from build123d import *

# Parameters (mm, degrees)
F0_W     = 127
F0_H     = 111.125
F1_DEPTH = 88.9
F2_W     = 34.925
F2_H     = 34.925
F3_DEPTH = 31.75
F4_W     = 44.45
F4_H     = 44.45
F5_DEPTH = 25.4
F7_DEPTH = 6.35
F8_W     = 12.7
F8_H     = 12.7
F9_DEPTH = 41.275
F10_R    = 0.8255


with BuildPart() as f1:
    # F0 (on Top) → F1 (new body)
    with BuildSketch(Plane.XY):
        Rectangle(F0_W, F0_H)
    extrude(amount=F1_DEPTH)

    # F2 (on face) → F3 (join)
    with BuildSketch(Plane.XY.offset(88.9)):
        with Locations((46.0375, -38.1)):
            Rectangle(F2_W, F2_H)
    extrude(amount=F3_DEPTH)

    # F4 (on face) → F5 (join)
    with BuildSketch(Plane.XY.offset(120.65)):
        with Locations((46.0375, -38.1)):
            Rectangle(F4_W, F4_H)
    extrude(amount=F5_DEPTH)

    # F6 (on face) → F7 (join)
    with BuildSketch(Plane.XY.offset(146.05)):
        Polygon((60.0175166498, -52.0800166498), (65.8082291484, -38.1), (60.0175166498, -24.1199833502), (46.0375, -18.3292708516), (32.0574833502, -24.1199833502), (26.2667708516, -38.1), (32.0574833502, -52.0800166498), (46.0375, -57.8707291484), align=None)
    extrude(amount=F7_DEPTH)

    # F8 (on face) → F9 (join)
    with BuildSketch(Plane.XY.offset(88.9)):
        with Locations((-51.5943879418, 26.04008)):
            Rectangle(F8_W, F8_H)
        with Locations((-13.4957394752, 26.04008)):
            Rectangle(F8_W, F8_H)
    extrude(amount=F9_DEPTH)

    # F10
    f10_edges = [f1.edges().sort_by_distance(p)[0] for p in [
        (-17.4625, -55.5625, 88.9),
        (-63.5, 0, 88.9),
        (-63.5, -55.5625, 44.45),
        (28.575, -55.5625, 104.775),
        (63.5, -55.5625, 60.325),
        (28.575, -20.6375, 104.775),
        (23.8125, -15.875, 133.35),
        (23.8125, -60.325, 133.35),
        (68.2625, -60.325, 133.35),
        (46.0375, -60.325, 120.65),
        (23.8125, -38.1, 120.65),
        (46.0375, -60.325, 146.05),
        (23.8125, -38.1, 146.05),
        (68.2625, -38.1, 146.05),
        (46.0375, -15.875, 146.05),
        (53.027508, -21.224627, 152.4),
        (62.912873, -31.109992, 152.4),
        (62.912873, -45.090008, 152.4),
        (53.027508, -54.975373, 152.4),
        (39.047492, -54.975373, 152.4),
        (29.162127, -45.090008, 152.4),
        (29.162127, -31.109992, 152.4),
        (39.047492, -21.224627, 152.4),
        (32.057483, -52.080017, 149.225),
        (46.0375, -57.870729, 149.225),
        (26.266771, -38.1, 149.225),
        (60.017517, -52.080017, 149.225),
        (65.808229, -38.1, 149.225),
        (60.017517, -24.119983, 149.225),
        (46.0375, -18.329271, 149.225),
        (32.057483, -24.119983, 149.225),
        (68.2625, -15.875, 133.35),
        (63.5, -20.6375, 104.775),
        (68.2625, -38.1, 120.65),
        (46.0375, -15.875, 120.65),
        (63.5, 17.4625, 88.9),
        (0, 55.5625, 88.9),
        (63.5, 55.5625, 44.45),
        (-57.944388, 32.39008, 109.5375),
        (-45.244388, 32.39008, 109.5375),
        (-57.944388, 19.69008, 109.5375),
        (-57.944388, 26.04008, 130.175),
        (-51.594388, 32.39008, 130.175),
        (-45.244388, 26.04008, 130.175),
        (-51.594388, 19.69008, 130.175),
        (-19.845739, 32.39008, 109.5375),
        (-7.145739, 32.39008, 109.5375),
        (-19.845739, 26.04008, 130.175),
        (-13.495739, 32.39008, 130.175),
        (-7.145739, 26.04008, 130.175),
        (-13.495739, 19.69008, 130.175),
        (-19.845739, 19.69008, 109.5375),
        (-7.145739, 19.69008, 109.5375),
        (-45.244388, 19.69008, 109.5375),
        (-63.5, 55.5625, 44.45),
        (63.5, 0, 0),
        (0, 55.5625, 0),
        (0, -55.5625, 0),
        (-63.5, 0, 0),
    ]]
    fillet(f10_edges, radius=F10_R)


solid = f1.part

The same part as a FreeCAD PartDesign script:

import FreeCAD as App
import Part
import Sketcher

V = App.Vector
Q = App.Units.Quantity


def edges_at(feature, points):
    """Names of the edges that pass closest to the given points."""
    edges = feature.Shape.Edges
    near = lambda p: min(range(len(edges)), key=lambda i: edges[i].distToShape(Part.Vertex(*p))[0])
    return sorted({f"Edge{near(p) + 1}" for p in points})


def add_polygon(sketch, points):
    """Adds a closed chain of lines whose ends are joined by coincident constraints."""
    first, n = sketch.GeometryCount, len(points)
    for a, b in zip(points, points[1:] + points[:1]):
        sketch.addGeometry(Part.LineSegment(App.Vector(*a, 0), App.Vector(*b, 0)), False)
    for i in range(n):
        sketch.addConstraint(Sketcher.Constraint("Coincident", first + i, 2, first + (i + 1) % n, 1))

doc = App.newDocument("Part")
body = doc.addObject("PartDesign::Body", "Body")

sketch1 = body.newObject("Sketcher::SketchObject", "Sketch")
sketch1.AttachmentSupport = (doc.getObject("XY_Plane"), [""])
sketch1.MapMode = "FlatFace"
add_polygon(sketch1, [(-64, 56), (-64, -56), (64, -56), (64, 56)])
sketch1.addConstraint(Sketcher.Constraint("Vertical", 0))
sketch1.addConstraint(Sketcher.Constraint("Horizontal", 1))
sketch1.addConstraint(Sketcher.Constraint("Vertical", 2))
sketch1.addConstraint(Sketcher.Constraint("Horizontal", 3))
sketch1.addConstraint(Sketcher.Constraint("Symmetric", 0, 2, 2, 2, -1, 1))
sketch1.addConstraint(Sketcher.Constraint("DistanceX", 1, 1, 1, 2, Q("5 in")))
sketch1.addConstraint(Sketcher.Constraint("DistanceY", 0, 2, 0, 1, Q("4.375 in")))
pad1 = body.newObject("PartDesign::Pad", "Pad")
pad1.Profile = sketch1
pad1.Length = Q("3.5 in")

sketch2 = body.newObject("Sketcher::SketchObject", "Sketch001")
sketch2.AttachmentSupport = (doc.getObject("XY_Plane"), [""])
sketch2.MapMode = "FlatFace"
sketch2.AttachmentOffset = App.Placement(V(0, 0, 3.5 * 25.4), App.Rotation())
add_polygon(sketch2, [(29, -21), (29, -56), (64, -56), (64, -21)])
sketch2.addConstraint(Sketcher.Constraint("Vertical", 0))
sketch2.addConstraint(Sketcher.Constraint("Horizontal", 1))
sketch2.addConstraint(Sketcher.Constraint("Vertical", 2))
sketch2.addConstraint(Sketcher.Constraint("Horizontal", 3))
sketch2.addConstraint(Sketcher.Constraint("Equal", 3, 0))
sketch2.addConstraint(Sketcher.Constraint("DistanceX", -1, 1, 1, 2, Q("2.5 in")))
sketch2.addConstraint(Sketcher.Constraint("DistanceX", 1, 1, 1, 2, Q("1.375 in")))
sketch2.addConstraint(Sketcher.Constraint("DistanceY", 0, 2, -1, 1, Q("2.1875 in")))
pad2 = body.newObject("PartDesign::Pad", "Pad001")
pad2.Profile = sketch2
pad2.Length = Q("1.25 in")

sketch3 = body.newObject("Sketcher::SketchObject", "Sketch002")
sketch3.AttachmentSupport = (doc.getObject("XY_Plane"), [""])
sketch3.MapMode = "FlatFace"
sketch3.AttachmentOffset = App.Placement(V(0, 0, 4.75 * 25.4), App.Rotation())
add_polygon(sketch3, [(24, -16), (24, -60), (68, -60), (68, -16)])
sketch3.addConstraint(Sketcher.Constraint("Vertical", 0))
sketch3.addConstraint(Sketcher.Constraint("Horizontal", 1))
sketch3.addConstraint(Sketcher.Constraint("Vertical", 2))
sketch3.addConstraint(Sketcher.Constraint("Horizontal", 3))
sketch3.addConstraint(Sketcher.Constraint("Equal", 3, 0))
sketch3.addConstraint(Sketcher.Constraint("DistanceX", 1, 1, 1, 2, Q("1.75 in")))
sketch3.addConstraint(Sketcher.Constraint("DistanceX", -1, 1, 0, 2, Q("0.9375 in")))
sketch3.addConstraint(Sketcher.Constraint("DistanceY", 0, 2, -1, 1, Q("2.375 in")))
pad3 = body.newObject("PartDesign::Pad", "Pad002")
pad3.Profile = sketch3
pad3.Length = Q("1 in")

sketch4 = body.newObject("Sketcher::SketchObject", "Sketch003")
sketch4.AttachmentSupport = (doc.getObject("XY_Plane"), [""])
sketch4.MapMode = "FlatFace"
sketch4.AttachmentOffset = App.Placement(V(0, 0, 5.75 * 25.4), App.Rotation())
add_polygon(sketch4, [(60, -52), (66, -38), (60, -24), (46, -18), (32, -24), (26, -38), (32, -52), (46, -58)])
sketch4.addConstraint(Sketcher.Constraint("Perpendicular", 0, 2))
sketch4.addConstraint(Sketcher.Constraint("Perpendicular", 1, 3))
sketch4.addConstraint(Sketcher.Constraint("Perpendicular", 2, 4))
sketch4.addConstraint(Sketcher.Constraint("Perpendicular", 3, 5))
sketch4.addConstraint(Sketcher.Constraint("Perpendicular", 4, 6))
sketch4.addConstraint(Sketcher.Constraint("Perpendicular", 5, 7))
sketch4.addConstraint(Sketcher.Constraint("Horizontal", 1, 2, 3, 2))
sketch4.addConstraint(Sketcher.Constraint("Horizontal", 0, 2, 4, 2))
sketch4.addConstraint(Sketcher.Constraint("Horizontal", 5, 2, 7, 2))
sketch4.addConstraint(Sketcher.Constraint("Vertical", 3, 2, 5, 2))
sketch4.addConstraint(Sketcher.Constraint("Vertical", 2, 2, 6, 2))
sketch4.addConstraint(Sketcher.Constraint("Equal", 1, 2))
sketch4.addConstraint(Sketcher.Constraint("DistanceY", 0, 2, -1, 1, Q("1.5 in")))
sketch4.addConstraint(Sketcher.Constraint("Angle", 0, Q("67.5 deg")))
sketch4.addConstraint(Sketcher.Constraint("DistanceX", -1, 1, 2, 2, Q("1.8125 in")))
sketch4.addConstraint(Sketcher.Constraint("Distance", 0, Q("15.131861 mm")))
pad4 = body.newObject("PartDesign::Pad", "Pad003")
pad4.Profile = sketch4
pad4.Length = Q("0.25 in")

sketch5 = body.newObject("Sketcher::SketchObject", "Sketch004")
sketch5.AttachmentSupport = (doc.getObject("XY_Plane"), [""])
sketch5.MapMode = "FlatFace"
sketch5.AttachmentOffset = App.Placement(V(0, 0, 3.5 * 25.4), App.Rotation())
add_polygon(sketch5, [(-58, 32), (-58, 20), (-45, 20), (-45, 32)])
add_polygon(sketch5, [(-20, 32), (-20, 20), (-7, 20), (-7, 32)])
sketch5.addConstraint(Sketcher.Constraint("Vertical", 0))
sketch5.addConstraint(Sketcher.Constraint("Horizontal", 1))
sketch5.addConstraint(Sketcher.Constraint("Vertical", 2))
sketch5.addConstraint(Sketcher.Constraint("Horizontal", 3))
sketch5.addConstraint(Sketcher.Constraint("Vertical", 4))
sketch5.addConstraint(Sketcher.Constraint("Horizontal", 5))
sketch5.addConstraint(Sketcher.Constraint("Vertical", 6))
sketch5.addConstraint(Sketcher.Constraint("Horizontal", 7))
sketch5.addConstraint(Sketcher.Constraint("Horizontal", 1, 2, 4, 2))
sketch5.addConstraint(Sketcher.Constraint("Horizontal", 3, 2, 6, 2))
sketch5.addConstraint(Sketcher.Constraint("Equal", 3, 5))
sketch5.addConstraint(Sketcher.Constraint("Equal", 7, 0))
sketch5.addConstraint(Sketcher.Constraint("DistanceX", 1, 1, 1, 2, Q("0.5 in")))
sketch5.addConstraint(Sketcher.Constraint("DistanceY", -1, 1, 0, 2, Q("0.7752 in")))
sketch5.addConstraint(Sketcher.Constraint("DistanceX", 4, 2, -1, 1, Q("19.845739 mm")))
sketch5.addConstraint(Sketcher.Constraint("DistanceX", 1, 2, 4, 2, Q("25.398648 mm")))
pad5 = body.newObject("PartDesign::Pad", "Pad004")
pad5.Profile = sketch5
pad5.Length = Q("1.625 in")
doc.recompute()

fillet = body.newObject("PartDesign::Fillet", "Fillet")
fillet.Base = (pad5, edges_at(pad5, [
    (-17.462, -55.562, 88.9),
    (-63.5, 0, 88.9),
    (-63.5, -55.562, 44.45),
    (28.575, -55.562, 104.775),
    (63.5, -55.562, 60.325),
    (28.575, -20.637, 104.775),
    (23.812, -15.875, 133.35),
    (23.812, -60.325, 133.35),
    (68.263, -60.325, 133.35),
    (46.038, -60.325, 120.65),
    (23.812, -38.1, 120.65),
    (46.038, -60.325, 146.05),
    (23.812, -38.1, 146.05),
    (68.263, -38.1, 146.05),
    (46.038, -15.875, 146.05),
    (53.028, -21.225, 152.4),
    (62.913, -31.11, 152.4),
    (62.913, -45.09, 152.4),
    (53.028, -54.975, 152.4),
    (39.047, -54.975, 152.4),
    (29.162, -45.09, 152.4),
    (29.162, -31.11, 152.4),
    (39.047, -21.225, 152.4),
    (32.057, -52.08, 149.225),
    (46.038, -57.871, 149.225),
    (26.267, -38.1, 149.225),
    (60.018, -52.08, 149.225),
    (65.808, -38.1, 149.225),
    (60.018, -24.12, 149.225),
    (46.038, -18.329, 149.225),
    (32.057, -24.12, 149.225),
    (68.263, -15.875, 133.35),
    (63.5, -20.637, 104.775),
    (68.263, -38.1, 120.65),
    (46.038, -15.875, 120.65),
    (63.5, 17.462, 88.9),
    (0, 55.562, 88.9),
    (63.5, 55.562, 44.45),
    (-57.944, 32.39, 109.537),
    (-45.244, 32.39, 109.537),
    (-57.944, 19.69, 109.537),
    (-57.944, 26.04, 130.175),
    (-51.594, 32.39, 130.175),
    (-45.244, 26.04, 130.175),
    (-51.594, 19.69, 130.175),
    (-19.846, 32.39, 109.537),
    (-7.146, 32.39, 109.537),
    (-19.846, 26.04, 130.175),
    (-13.496, 32.39, 130.175),
    (-7.146, 26.04, 130.175),
    (-13.496, 19.69, 130.175),
    (-19.846, 19.69, 109.537),
    (-7.146, 19.69, 109.537),
    (-45.244, 19.69, 109.537),
    (-63.5, 55.562, 44.45),
    (63.5, 0, 0),
    (0, 55.562, 0),
    (0, -55.562, 0),
    (-63.5, 0, 0),
]))
fillet.Radius = Q("0.0325 in")

doc.recompute()
